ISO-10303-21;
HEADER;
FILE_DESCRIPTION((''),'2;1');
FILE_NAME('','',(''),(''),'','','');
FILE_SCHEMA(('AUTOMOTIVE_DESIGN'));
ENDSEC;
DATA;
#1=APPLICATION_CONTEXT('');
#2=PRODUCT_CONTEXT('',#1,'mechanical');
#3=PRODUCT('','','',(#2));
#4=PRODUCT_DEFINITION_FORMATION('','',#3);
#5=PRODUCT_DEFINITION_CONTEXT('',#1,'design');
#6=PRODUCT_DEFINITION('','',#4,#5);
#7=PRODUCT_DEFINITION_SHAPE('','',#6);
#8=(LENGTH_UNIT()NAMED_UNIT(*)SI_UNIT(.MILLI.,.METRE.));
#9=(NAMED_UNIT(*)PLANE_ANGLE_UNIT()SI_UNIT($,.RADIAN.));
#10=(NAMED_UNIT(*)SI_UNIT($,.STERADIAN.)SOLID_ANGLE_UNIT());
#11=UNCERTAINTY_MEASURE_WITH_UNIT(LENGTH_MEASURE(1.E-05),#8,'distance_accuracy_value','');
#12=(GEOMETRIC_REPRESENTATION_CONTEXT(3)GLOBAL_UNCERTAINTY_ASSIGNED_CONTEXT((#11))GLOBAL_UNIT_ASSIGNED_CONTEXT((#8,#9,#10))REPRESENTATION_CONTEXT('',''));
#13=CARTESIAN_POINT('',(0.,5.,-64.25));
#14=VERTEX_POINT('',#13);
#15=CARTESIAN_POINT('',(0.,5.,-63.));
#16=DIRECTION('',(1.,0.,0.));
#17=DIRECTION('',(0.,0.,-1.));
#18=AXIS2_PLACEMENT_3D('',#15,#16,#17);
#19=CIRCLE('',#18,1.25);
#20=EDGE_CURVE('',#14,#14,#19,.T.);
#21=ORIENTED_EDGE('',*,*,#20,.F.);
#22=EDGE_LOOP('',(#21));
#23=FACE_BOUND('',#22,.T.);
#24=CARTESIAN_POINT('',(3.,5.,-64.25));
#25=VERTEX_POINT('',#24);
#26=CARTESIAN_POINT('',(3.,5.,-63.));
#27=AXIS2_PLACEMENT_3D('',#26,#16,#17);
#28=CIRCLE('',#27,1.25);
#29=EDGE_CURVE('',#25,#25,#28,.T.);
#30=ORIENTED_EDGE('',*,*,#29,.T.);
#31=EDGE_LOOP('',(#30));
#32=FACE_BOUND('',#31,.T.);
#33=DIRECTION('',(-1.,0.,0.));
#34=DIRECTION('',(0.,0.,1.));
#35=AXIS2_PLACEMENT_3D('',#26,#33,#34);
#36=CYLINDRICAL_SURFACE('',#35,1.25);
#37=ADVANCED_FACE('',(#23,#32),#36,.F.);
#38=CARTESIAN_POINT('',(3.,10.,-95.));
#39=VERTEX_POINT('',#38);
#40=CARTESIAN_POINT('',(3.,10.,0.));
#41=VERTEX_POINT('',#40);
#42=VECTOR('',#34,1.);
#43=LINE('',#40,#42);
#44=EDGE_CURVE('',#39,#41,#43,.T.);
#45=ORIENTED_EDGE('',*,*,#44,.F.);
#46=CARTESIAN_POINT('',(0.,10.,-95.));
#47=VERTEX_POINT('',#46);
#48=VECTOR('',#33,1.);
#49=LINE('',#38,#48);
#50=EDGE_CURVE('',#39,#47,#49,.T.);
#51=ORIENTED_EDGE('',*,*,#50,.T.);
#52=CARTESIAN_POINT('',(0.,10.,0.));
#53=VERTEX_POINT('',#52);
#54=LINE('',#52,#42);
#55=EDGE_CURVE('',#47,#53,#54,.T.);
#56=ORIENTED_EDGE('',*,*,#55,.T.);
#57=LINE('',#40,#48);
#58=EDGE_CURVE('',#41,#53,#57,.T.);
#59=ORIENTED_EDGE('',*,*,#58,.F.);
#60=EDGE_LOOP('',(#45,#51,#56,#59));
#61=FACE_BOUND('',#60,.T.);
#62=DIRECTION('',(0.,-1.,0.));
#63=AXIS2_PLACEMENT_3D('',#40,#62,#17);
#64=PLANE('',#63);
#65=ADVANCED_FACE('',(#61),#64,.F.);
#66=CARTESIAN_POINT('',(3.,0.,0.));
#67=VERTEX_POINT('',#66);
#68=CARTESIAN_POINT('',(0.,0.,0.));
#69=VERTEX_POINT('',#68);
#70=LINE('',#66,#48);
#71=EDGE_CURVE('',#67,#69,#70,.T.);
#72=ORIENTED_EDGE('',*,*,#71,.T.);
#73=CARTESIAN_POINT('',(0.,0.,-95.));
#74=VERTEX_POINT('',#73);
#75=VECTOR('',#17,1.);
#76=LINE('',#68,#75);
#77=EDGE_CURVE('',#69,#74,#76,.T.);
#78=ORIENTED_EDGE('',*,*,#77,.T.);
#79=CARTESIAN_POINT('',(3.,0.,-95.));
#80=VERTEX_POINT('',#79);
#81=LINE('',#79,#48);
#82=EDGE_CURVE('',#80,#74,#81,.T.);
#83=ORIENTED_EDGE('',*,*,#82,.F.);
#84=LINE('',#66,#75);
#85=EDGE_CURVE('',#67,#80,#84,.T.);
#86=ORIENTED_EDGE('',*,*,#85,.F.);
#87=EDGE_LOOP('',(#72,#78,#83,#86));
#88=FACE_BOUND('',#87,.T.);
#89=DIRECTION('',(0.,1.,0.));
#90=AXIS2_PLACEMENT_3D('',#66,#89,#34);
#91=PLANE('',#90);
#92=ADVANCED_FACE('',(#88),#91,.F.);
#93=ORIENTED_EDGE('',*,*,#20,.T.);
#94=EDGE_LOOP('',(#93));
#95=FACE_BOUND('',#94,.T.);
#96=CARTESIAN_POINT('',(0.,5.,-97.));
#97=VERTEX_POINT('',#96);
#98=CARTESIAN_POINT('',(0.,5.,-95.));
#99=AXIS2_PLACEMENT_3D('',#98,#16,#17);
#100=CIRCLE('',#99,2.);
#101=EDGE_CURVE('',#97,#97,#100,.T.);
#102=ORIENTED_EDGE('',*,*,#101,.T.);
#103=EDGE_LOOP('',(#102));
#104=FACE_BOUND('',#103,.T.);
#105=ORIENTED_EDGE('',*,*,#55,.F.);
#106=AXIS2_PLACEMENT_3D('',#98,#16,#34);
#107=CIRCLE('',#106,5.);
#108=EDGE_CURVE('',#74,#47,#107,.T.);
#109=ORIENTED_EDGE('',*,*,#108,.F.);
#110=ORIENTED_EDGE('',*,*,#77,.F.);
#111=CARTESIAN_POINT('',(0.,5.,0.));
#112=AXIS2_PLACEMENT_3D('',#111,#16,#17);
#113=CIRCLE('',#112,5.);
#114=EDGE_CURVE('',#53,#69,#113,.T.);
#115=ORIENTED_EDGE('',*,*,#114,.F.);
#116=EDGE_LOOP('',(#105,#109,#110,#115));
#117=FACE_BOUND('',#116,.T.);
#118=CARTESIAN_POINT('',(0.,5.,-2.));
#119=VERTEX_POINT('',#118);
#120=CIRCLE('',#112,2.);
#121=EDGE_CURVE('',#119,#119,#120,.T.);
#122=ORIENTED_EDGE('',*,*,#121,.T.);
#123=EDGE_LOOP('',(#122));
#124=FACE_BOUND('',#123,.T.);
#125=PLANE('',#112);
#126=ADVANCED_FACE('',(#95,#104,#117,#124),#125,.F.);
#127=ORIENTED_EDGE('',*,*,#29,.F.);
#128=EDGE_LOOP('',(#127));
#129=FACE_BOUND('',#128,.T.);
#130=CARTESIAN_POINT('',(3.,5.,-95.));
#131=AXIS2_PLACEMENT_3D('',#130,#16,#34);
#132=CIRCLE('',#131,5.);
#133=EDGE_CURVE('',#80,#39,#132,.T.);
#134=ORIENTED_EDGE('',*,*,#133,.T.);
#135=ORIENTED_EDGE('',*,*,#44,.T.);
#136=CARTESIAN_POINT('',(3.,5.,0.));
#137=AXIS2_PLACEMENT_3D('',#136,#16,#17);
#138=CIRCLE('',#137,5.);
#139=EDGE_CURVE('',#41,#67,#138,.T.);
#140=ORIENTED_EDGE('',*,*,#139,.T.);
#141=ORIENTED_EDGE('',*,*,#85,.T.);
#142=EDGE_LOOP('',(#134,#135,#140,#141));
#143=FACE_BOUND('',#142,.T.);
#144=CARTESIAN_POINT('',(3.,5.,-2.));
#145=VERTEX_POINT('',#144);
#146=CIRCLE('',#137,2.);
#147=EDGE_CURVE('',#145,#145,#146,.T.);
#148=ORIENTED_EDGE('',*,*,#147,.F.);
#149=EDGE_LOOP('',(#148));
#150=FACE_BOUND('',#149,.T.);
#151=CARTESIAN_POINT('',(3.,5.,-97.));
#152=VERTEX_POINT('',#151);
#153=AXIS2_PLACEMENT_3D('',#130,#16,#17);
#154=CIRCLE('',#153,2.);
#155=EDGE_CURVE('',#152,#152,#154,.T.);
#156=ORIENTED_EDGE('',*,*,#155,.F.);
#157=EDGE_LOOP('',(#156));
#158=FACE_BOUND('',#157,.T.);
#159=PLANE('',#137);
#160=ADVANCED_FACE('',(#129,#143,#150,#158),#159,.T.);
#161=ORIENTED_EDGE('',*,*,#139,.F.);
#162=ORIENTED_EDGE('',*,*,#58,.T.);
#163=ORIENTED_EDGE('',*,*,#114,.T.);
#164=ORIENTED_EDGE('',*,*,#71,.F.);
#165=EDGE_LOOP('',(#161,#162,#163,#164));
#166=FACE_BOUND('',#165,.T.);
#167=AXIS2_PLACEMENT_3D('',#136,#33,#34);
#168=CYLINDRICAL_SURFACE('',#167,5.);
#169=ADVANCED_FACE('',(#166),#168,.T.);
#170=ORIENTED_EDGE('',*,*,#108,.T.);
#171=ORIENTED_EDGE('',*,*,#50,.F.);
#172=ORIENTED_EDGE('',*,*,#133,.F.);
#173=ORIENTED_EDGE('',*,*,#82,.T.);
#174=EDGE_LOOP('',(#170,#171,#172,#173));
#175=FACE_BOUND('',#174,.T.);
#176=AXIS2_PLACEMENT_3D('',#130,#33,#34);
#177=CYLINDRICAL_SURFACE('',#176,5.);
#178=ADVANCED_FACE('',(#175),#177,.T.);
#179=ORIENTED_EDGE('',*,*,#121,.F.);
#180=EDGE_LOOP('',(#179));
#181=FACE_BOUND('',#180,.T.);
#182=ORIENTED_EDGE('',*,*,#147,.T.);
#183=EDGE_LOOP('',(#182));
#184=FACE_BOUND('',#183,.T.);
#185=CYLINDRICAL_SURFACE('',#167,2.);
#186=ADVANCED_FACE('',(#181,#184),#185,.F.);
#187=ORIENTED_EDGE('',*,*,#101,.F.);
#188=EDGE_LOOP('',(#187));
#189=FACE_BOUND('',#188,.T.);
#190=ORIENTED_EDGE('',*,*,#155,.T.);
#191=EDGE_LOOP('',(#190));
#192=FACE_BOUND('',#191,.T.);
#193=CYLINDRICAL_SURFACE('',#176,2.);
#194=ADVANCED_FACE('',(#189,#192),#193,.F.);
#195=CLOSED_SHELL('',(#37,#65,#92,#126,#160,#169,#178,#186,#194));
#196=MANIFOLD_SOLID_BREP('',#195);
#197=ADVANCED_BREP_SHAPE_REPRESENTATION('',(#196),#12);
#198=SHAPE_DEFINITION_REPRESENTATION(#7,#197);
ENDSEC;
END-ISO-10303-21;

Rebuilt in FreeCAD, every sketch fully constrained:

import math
import FreeCAD as App
import Part
import Sketcher
from FreeCAD import Vector
Q = App.Units.Quantity

doc = App.newDocument("Part")
body = doc.addObject("PartDesign::Body", "Body")

# Sketch on YZ plane
sketch1 = doc.addObject("Sketcher::SketchObject", "Sketch")
body.addObject(sketch1)
sketch1.AttachmentSupport = (doc.YZ_Plane, [""])
sketch1.MapMode = "FlatFace"
sketch1.addGeometry([
    Part.LineSegment(Vector(0, 0, 0), Vector(0, -95, 0)),  # 0
    Part.ArcOfCircle(Part.Circle(Vector(5, -95, 0), Vector(0, 0, 1), 5), math.radians(180), math.radians(360)),  # 1
    Part.LineSegment(Vector(10, -95, 0), Vector(10, 0, 0)),  # 2
    Part.ArcOfCircle(Part.Circle(Vector(5, 0, 0), Vector(0, 0, 1), 5), math.radians(0), math.radians(180)),  # 3
    Part.Circle(Vector(5, 0, 0), Vector(0, 0, 1), 2),  # 4
    Part.Circle(Vector(5, -63, 0), Vector(0, 0, 1), 1.2),  # 5
    Part.Circle(Vector(5, -95, 0), Vector(0, 0, 1), 2),  # 6
], False)
sketch1.addConstraint([
    Sketcher.Constraint("Tangent", 0, 2, 1, 1),
    Sketcher.Constraint("Tangent", 1, 2, 2, 1),
    Sketcher.Constraint("Tangent", 2, 2, 3, 1),
    Sketcher.Constraint("Tangent", 3, 2, 0, 1),
    Sketcher.Constraint("Vertical", 0),
    Sketcher.Constraint("Vertical", 2),
    Sketcher.Constraint("Coincident", 3, 2, -1, 1),
    Sketcher.Constraint("Coincident", 4, 3, 3, 3),
    Sketcher.Constraint("Coincident", 6, 3, 1, 3),
    Sketcher.Constraint("Equal", 4, 6),
    Sketcher.Constraint("Vertical", 4, 3, 5, 3),
    Sketcher.Constraint("Diameter", 4, Q("4 mm")),
    Sketcher.Constraint("Radius", 1, Q("5 mm")),
    Sketcher.Constraint("Diameter", 5, Q("2.5 mm")),
    Sketcher.Constraint("DistanceY", 0, 2, 0, 1, Q("95 mm")),
    Sketcher.Constraint("DistanceY", 5, 3, -1, 1, Q("63 mm")),
])
pad1 = doc.addObject("PartDesign::Pad", "Pad")
body.addObject(pad1)
pad1.Profile = sketch1
pad1.Length = 3

doc.recompute()
